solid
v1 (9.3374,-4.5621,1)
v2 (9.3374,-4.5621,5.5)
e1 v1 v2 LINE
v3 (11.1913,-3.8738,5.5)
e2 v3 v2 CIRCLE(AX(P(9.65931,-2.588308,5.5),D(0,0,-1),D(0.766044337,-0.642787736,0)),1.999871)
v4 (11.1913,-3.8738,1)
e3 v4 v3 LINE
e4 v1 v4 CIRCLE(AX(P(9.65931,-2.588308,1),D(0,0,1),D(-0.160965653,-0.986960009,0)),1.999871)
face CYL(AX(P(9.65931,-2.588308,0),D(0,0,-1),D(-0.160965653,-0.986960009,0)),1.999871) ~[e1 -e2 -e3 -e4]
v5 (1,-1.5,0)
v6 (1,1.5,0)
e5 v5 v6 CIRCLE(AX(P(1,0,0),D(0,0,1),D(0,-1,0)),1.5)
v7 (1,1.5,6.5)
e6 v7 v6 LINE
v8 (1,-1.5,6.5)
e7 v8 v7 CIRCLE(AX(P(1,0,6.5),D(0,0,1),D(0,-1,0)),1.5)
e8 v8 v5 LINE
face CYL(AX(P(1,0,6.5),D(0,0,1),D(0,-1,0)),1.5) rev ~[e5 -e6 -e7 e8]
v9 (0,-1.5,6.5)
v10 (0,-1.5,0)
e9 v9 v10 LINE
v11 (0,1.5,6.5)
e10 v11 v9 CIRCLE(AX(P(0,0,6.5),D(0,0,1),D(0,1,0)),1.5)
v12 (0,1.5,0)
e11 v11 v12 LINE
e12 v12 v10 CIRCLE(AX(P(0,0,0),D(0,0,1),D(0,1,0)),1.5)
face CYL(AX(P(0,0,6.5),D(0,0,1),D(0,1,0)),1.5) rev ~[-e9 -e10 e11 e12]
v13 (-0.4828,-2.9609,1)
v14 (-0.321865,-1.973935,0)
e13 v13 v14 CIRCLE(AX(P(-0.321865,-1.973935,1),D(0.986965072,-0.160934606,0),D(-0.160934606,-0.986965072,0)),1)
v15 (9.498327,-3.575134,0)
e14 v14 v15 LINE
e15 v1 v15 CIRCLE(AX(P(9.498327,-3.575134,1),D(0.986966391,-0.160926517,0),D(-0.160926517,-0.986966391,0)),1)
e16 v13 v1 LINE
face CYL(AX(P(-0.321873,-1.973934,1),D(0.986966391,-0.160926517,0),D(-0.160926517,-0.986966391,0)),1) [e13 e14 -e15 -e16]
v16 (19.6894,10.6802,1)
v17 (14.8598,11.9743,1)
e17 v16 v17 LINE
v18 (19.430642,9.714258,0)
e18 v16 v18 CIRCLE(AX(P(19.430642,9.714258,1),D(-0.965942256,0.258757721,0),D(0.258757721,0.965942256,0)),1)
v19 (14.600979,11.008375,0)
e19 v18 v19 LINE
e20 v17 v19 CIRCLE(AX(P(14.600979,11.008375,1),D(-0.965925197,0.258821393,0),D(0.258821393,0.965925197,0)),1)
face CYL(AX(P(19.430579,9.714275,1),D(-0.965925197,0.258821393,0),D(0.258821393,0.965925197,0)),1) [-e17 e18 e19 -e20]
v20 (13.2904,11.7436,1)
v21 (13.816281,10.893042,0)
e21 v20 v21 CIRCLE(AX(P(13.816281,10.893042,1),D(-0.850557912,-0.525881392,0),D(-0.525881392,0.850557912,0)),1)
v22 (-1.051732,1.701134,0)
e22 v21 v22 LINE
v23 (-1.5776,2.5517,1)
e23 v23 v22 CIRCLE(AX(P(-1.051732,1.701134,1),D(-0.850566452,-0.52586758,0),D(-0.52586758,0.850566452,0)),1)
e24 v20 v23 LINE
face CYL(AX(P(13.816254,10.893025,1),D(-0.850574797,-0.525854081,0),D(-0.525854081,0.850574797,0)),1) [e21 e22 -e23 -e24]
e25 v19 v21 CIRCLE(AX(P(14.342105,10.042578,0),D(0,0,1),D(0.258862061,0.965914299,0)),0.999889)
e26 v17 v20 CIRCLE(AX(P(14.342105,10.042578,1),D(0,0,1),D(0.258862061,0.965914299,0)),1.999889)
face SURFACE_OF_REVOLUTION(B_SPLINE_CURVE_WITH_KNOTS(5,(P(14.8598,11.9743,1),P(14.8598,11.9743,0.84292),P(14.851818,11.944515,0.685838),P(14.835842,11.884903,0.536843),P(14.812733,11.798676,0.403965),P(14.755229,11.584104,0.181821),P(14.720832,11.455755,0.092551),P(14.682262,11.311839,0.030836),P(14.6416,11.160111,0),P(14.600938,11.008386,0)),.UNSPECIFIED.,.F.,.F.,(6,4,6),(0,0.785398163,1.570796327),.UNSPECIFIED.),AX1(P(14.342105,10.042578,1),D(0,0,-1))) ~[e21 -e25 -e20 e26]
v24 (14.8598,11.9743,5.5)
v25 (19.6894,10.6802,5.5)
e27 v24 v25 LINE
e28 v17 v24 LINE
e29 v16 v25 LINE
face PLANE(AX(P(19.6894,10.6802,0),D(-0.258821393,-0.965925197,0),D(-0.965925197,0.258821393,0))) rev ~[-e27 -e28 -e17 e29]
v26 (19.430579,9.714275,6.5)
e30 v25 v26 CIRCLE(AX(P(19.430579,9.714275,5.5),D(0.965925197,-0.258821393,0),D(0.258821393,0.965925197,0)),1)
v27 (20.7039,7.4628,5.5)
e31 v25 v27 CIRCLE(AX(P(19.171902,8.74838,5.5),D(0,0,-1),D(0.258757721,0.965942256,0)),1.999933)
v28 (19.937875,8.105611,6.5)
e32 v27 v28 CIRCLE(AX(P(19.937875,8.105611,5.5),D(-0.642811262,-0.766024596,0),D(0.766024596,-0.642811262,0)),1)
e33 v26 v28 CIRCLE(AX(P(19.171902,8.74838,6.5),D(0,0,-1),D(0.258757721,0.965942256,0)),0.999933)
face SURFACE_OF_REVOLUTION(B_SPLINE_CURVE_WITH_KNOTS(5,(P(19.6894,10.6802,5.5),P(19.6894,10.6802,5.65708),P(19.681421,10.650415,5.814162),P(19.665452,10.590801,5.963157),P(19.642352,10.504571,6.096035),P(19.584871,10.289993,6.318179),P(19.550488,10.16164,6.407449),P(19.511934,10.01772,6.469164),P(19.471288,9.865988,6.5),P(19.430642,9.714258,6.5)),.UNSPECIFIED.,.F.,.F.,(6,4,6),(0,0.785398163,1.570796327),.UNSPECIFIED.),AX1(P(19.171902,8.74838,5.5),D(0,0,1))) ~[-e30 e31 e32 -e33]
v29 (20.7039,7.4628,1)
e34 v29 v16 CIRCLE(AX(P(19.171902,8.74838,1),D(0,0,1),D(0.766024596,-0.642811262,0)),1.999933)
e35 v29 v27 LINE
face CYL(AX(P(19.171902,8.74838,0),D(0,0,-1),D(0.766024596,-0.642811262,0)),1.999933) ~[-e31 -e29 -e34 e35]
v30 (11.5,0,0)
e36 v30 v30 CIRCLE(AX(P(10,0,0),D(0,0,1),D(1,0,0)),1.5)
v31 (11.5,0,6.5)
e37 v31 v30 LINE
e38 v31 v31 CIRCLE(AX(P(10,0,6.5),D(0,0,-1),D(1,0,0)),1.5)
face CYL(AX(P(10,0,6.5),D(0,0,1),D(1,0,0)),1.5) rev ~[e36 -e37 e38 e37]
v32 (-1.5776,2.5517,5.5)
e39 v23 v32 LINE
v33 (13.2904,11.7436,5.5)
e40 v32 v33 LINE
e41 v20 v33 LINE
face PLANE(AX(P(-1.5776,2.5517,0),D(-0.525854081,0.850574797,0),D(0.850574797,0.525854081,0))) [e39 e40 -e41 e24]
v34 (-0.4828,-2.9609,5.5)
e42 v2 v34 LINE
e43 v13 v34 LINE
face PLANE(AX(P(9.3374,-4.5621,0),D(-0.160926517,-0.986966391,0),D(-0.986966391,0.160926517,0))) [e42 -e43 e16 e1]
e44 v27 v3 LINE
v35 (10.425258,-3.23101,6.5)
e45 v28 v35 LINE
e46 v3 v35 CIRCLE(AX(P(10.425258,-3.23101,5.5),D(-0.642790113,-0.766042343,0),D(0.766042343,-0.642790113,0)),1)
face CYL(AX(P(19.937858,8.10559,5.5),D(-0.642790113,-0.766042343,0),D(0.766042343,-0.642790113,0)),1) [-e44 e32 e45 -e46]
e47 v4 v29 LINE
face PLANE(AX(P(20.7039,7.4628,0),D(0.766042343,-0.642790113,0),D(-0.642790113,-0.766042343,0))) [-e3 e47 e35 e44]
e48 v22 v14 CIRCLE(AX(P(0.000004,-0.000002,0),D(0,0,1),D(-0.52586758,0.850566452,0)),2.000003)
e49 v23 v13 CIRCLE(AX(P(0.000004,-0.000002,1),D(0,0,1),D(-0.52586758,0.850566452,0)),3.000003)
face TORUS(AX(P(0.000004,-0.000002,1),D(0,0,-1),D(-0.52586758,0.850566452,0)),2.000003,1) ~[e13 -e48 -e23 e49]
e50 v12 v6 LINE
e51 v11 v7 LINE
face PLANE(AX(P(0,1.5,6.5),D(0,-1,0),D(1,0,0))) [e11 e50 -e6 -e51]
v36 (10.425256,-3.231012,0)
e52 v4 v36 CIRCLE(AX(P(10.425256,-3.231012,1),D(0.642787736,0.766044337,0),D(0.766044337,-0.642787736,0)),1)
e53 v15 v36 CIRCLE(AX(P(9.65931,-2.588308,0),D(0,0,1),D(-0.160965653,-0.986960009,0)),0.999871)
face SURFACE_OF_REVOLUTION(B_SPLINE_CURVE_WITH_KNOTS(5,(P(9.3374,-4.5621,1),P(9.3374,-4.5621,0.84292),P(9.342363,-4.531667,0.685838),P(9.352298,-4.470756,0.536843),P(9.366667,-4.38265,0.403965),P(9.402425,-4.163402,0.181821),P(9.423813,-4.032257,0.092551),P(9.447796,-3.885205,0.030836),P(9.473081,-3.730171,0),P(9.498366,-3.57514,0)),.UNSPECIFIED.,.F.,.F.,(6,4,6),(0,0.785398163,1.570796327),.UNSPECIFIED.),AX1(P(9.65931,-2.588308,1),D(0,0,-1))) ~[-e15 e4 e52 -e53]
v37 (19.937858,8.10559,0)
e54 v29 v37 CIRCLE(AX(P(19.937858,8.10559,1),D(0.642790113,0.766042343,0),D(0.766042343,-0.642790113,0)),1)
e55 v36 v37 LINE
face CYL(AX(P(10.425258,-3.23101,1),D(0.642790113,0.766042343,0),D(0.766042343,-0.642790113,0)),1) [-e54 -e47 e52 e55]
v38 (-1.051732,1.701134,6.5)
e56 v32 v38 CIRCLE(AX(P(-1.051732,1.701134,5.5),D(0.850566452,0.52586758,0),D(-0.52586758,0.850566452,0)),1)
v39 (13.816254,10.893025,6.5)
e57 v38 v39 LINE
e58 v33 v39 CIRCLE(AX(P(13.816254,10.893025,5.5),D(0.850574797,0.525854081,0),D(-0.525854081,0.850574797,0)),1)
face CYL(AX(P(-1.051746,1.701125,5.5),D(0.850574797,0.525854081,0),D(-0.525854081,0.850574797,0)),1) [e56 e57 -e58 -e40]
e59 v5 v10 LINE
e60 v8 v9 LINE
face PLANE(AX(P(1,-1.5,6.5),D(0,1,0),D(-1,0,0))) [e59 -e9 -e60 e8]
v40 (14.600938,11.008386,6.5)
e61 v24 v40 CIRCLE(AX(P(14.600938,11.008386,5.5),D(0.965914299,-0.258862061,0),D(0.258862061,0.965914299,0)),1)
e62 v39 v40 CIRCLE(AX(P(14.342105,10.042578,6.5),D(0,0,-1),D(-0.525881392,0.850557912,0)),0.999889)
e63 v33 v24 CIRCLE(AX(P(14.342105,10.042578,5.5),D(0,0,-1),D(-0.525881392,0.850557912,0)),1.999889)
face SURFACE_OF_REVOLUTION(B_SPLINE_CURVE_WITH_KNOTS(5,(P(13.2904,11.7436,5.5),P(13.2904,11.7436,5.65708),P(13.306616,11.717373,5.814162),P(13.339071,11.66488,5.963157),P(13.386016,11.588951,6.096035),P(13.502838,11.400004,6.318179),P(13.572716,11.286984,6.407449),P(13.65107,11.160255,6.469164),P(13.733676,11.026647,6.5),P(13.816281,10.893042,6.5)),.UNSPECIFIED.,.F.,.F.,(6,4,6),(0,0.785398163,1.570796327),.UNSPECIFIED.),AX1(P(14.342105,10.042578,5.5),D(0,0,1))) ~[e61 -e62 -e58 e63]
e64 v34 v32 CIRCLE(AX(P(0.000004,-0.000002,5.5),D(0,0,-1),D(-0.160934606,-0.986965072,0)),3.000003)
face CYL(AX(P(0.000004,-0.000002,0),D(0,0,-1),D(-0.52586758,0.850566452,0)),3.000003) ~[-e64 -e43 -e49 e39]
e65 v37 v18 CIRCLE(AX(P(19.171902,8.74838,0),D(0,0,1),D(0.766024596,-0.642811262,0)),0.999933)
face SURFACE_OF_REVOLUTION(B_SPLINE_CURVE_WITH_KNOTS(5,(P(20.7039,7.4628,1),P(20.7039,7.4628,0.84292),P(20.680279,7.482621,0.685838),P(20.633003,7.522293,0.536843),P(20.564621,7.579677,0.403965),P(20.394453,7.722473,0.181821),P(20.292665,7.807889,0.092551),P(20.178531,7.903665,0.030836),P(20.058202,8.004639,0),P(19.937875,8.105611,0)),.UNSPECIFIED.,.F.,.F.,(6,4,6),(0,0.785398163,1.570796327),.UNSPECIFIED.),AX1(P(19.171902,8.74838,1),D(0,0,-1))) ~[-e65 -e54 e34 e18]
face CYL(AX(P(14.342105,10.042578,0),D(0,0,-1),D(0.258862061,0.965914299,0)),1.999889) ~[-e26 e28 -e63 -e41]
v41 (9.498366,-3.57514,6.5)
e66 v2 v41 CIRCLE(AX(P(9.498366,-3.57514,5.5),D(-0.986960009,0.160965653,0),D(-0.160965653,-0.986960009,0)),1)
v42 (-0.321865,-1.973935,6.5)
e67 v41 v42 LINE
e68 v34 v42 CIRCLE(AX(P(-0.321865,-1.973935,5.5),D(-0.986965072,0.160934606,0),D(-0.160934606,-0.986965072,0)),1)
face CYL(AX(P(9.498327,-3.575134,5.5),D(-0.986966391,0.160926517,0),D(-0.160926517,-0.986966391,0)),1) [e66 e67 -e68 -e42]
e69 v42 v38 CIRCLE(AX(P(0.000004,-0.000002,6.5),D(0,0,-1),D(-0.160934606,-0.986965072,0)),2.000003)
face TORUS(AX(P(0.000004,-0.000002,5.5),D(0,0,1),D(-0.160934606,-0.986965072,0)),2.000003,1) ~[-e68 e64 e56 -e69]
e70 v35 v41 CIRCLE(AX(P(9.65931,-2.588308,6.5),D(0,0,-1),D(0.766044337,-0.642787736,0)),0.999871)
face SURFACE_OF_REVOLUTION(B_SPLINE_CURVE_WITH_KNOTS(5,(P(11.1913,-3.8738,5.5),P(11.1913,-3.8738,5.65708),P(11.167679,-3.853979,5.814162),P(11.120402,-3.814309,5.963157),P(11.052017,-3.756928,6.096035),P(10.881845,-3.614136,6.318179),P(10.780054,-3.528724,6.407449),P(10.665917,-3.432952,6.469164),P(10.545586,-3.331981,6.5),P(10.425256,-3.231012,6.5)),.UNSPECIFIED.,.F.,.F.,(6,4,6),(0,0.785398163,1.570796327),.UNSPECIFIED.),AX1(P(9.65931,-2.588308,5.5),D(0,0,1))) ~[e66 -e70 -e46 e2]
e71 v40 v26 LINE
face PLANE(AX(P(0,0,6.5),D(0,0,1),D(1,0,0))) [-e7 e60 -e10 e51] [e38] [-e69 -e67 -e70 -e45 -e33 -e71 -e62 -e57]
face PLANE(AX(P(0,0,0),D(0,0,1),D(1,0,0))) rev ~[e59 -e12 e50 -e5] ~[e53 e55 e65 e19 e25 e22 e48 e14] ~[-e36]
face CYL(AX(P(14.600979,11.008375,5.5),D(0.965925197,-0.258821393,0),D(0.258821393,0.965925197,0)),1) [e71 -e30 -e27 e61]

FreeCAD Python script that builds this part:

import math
import FreeCAD as App
import Part
import Sketcher

V = App.Vector
Q = App.Units.Quantity


def edges_at(feature, points):
    """Names of the edges that pass closest to the given points."""
    edges = feature.Shape.Edges
    near = lambda p: min(range(len(edges)), key=lambda i: edges[i].distToShape(Part.Vertex(*p))[0])
    return sorted({f"Edge{near(p) + 1}" for p in points})

doc = App.newDocument("Part")
body = doc.addObject("PartDesign::Body", "Body")

sketch1 = body.newObject("Sketcher::SketchObject", "Sketch")
sketch1.AttachmentSupport = (doc.getObject("XY_Plane"), [""])
sketch1.MapMode = "FlatFace"
sketch1.addGeometry([
    Part.LineSegment(V(13.2904, 11.7436, 0), V(-1.5776, 2.5517, 0)),
    Part.ArcOfCircle(Part.Circle(V(0, 0, 0), V(0, 0, 1), 2.999999), math.radians(121.726616), math.radians(260.738938)),
    Part.LineSegment(V(-0.4828, -2.9609, 0), V(9.3374, -4.5621, 0)),
    Part.ArcOfCircle(Part.Circle(V(9.6593, -2.5882, 0), V(0, 0, 1), 1.999975), math.radians(-99.262158), math.radians(-40.002181)),
    Part.LineSegment(V(11.1913, -3.8738, 0), V(20.7039, 7.4628, 0)),
    Part.ArcOfCircle(Part.Circle(V(19.1718, 8.7484, 0), V(0, 0, 1), 2.000024), math.radians(-40.000339), math.radians(75.000671)),
    Part.LineSegment(V(19.6894, 10.6802, 0), V(14.8598, 11.9743, 0)),
    Part.ArcOfCircle(Part.Circle(V(14.3421, 10.0425, 0), V(0, 0, 1), 1.999966), math.radians(74.997904), math.radians(121.726306)),
], False)
sketch1.addConstraint([
    Sketcher.Constraint("Tangent", 0, 2, 1, 1),
    Sketcher.Constraint("Tangent", 1, 2, 2, 1),
    Sketcher.Constraint("Tangent", 2, 2, 3, 1),
    Sketcher.Constraint("Tangent", 3, 2, 4, 1),
    Sketcher.Constraint("Tangent", 4, 2, 5, 1),
    Sketcher.Constraint("Tangent", 5, 2, 6, 1),
    Sketcher.Constraint("Tangent", 6, 2, 7, 1),
    Sketcher.Constraint("Tangent", 7, 2, 0, 1),
    Sketcher.Constraint("Coincident", 1, 3, -1, 1),
    Sketcher.Constraint("Equal", 3, 5),
    Sketcher.Constraint("Equal", 5, 7),
    Sketcher.Constraint("Radius", 1, 3.0),
    Sketcher.Constraint("Radius", 3, 2.0),
    Sketcher.Constraint("Distance", 6, 5.0),
    Sketcher.Constraint("Angle", 4, Q("49.9998 deg")),
    Sketcher.Constraint("Angle", 6, Q("164.9999 deg")),
    Sketcher.Constraint("Angle", 2, Q("-9.2607 deg")),
    Sketcher.Constraint("Distance", 0, 17.48),
    Sketcher.Constraint("Distance", 2, 9.95),
])
pad1 = body.newObject("PartDesign::Pad", "Pad")
pad1.Profile = sketch1
pad1.Length = 6.5

sketch2 = body.newObject("Sketcher::SketchObject", "Sketch001")
sketch2.AttachmentSupport = (doc.getObject("XY_Plane"), [""])
sketch2.MapMode = "FlatFace"
sketch2.AttachmentOffset = App.Placement(V(0, 0, 6.5), App.Rotation())
sketch2.addGeometry([
    Part.LineSegment(V(1, 1.5, 0), V(0, 1.5, 0)),
    Part.ArcOfCircle(Part.Circle(V(0, 0, 0), V(0, 0, 1), 1.5), math.radians(90), math.radians(270)),
    Part.LineSegment(V(0, -1.5, 0), V(1, -1.5, 0)),
    Part.ArcOfCircle(Part.Circle(V(1, 0, 0), V(0, 0, 1), 1.5), math.radians(-90), math.radians(90)),
], False)
sketch2.addConstraint([
    Sketcher.Constraint("Tangent", 0, 2, 1, 1),
    Sketcher.Constraint("Tangent", 1, 2, 2, 1),
    Sketcher.Constraint("Tangent", 2, 2, 3, 1),
    Sketcher.Constraint("Tangent", 3, 2, 0, 1),
    Sketcher.Constraint("Horizontal", 0),
    Sketcher.Constraint("Horizontal", 2),
    Sketcher.Constraint("Coincident", 1, 3, -1, 1),
    Sketcher.Constraint("Radius", 1, 1.5),
    Sketcher.Constraint("DistanceX", 0, 2, 0, 1, 1.0),
])
pocket1 = body.newObject("PartDesign::Pocket", "Pocket")
pocket1.Profile = sketch2
pocket1.Type = "ThroughAll"

sketch3 = body.newObject("Sketcher::SketchObject", "Sketch002")
sketch3.AttachmentSupport = (doc.getObject("XY_Plane"), [""])
sketch3.MapMode = "FlatFace"
sketch3.AttachmentOffset = App.Placement(V(0, 0, 6.5), App.Rotation())
sketch3.addGeometry(Part.Circle(V(10, 0, 0), V(0, 0, 1), 1.5), False)
sketch3.addConstraint([
    Sketcher.Constraint("PointOnObject", 0, 3, -1),
    Sketcher.Constraint("Diameter", 0, 3.0),
    Sketcher.Constraint("DistanceX", -1, 1, 0, 3, 10.0),
])
pocket2 = body.newObject("PartDesign::Pocket", "Pocket001")
pocket2.Profile = sketch3
pocket2.Type = "ThroughAll"
doc.recompute()

fillet = body.newObject("PartDesign::Fillet", "Fillet")
fillet.Base = (pocket2, edges_at(pocket2, [
    (-2.942, -0.584, 6.5),
    (4.427, -3.761, 6.5),
    (10.355, -4.463, 6.5),
    (15.948, 1.794, 6.5),
    (21.079, 9.35, 6.5),
    (17.275, 11.327, 6.5),
    (14.051, 12.021, 6.5),
    (5.856, 7.148, 6.5),
    (-2.942, -0.584, 0),
    (4.427, -3.761, 0),
    (10.355, -4.463, 0),
    (15.948, 1.794, 0),
    (21.079, 9.35, 0),
    (17.275, 11.327, 0),
    (14.051, 12.021, 0),
    (5.856, 7.148, 0),
]))
fillet.Radius = 1

doc.recompute()
